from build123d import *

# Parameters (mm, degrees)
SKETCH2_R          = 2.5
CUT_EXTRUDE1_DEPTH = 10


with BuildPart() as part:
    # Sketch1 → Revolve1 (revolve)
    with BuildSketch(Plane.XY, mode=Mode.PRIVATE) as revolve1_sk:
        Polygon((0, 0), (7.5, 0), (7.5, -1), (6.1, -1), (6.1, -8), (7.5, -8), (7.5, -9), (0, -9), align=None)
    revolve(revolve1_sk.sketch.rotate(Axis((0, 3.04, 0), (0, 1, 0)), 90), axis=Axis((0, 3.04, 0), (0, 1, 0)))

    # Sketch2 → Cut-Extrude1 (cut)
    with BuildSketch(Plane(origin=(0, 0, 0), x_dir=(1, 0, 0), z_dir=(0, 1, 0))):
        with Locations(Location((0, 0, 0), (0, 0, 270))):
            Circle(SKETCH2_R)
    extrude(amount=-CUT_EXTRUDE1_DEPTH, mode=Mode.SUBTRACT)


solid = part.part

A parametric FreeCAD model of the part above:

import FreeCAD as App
import Part
import Sketcher

V = App.Vector
Q = App.Units.Quantity

doc = App.newDocument("Part")
body = doc.addObject("PartDesign::Body", "Body")

sketch1 = body.newObject("Sketcher::SketchObject", "Sketch")
sketch1.AttachmentSupport = (doc.getObject("XY_Plane"), [""])
sketch1.MapMode = "FlatFace"
sketch1.addGeometry([
    Part.LineSegment(V(7.5, 0, 0), V(0, 0, 0)),
    Part.LineSegment(V(0, 0, 0), V(0, -9, 0)),
    Part.LineSegment(V(0, -9, 0), V(7.5, -9, 0)),
    Part.LineSegment(V(7.5, -9, 0), V(7.5, -8, 0)),
    Part.LineSegment(V(7.5, -8, 0), V(6.1, -8, 0)),
    Part.LineSegment(V(6.1, -8, 0), V(6.1, -1, 0)),
    Part.LineSegment(V(6.1, -1, 0), V(7.5, -1, 0)),
    Part.LineSegment(V(7.5, -1, 0), V(7.5, 0, 0)),
], False)
sketch1.addConstraint([
    Sketcher.Constraint("Coincident", 0, 2, 1, 1),
    Sketcher.Constraint("Coincident", 1, 2, 2, 1),
    Sketcher.Constraint("Coincident", 2, 2, 3, 1),
    Sketcher.Constraint("Coincident", 3, 2, 4, 1),
    Sketcher.Constraint("Coincident", 4, 2, 5, 1),
    Sketcher.Constraint("Coincident", 5, 2, 6, 1),
    Sketcher.Constraint("Coincident", 6, 2, 7, 1),
    Sketcher.Constraint("Coincident", 7, 2, 0, 1),
    Sketcher.Constraint("Horizontal", 0),
    Sketcher.Constraint("Vertical", 1),
    Sketcher.Constraint("Horizontal", 2),
    Sketcher.Constraint("Vertical", 3),
    Sketcher.Constraint("Horizontal", 4),
    Sketcher.Constraint("Vertical", 5),
    Sketcher.Constraint("Horizontal", 6),
    Sketcher.Constraint("Vertical", 7),
    Sketcher.Constraint("Coincident", 0, 2, -1, 1),
    Sketcher.Constraint("Vertical", 3, 2, 6, 2),
    Sketcher.Constraint("Equal", 3, 7),
    Sketcher.Constraint("DistanceY", 1, 2, 1, 1, Q("9 mm")),
    Sketcher.Constraint("DistanceY", 3, 1, 3, 2, Q("1 mm")),
    Sketcher.Constraint("DistanceX", 0, 2, 0, 1, Q("7.5 mm")),
    Sketcher.Constraint("DistanceX", 4, 2, 4, 1, Q("1.4 mm")),
])
revolution = body.newObject("PartDesign::Revolution", "Revolution")
revolution.Profile = sketch1
revolution.ReferenceAxis = (sketch1, ["V_Axis"])
revolution.Angle = 360

sketch2 = body.newObject("Sketcher::SketchObject", "Sketch001")
sketch2.AttachmentSupport = (doc.getObject("XZ_Plane"), [""])
sketch2.MapMode = "FlatFace"
sketch2.addGeometry(Part.Circle(V(0, 0, 0), V(0, 0, 1), 2.5), False)
sketch2.addConstraint([
    Sketcher.Constraint("Coincident", 0, 3, -1, 1),
    Sketcher.Constraint("Diameter", 0, Q("5 mm")),
])
pocket1 = body.newObject("PartDesign::Pocket", "Pocket")
pocket1.Profile = sketch2
pocket1.Length = 10
pocket1.Reversed = True

doc.recompute()
